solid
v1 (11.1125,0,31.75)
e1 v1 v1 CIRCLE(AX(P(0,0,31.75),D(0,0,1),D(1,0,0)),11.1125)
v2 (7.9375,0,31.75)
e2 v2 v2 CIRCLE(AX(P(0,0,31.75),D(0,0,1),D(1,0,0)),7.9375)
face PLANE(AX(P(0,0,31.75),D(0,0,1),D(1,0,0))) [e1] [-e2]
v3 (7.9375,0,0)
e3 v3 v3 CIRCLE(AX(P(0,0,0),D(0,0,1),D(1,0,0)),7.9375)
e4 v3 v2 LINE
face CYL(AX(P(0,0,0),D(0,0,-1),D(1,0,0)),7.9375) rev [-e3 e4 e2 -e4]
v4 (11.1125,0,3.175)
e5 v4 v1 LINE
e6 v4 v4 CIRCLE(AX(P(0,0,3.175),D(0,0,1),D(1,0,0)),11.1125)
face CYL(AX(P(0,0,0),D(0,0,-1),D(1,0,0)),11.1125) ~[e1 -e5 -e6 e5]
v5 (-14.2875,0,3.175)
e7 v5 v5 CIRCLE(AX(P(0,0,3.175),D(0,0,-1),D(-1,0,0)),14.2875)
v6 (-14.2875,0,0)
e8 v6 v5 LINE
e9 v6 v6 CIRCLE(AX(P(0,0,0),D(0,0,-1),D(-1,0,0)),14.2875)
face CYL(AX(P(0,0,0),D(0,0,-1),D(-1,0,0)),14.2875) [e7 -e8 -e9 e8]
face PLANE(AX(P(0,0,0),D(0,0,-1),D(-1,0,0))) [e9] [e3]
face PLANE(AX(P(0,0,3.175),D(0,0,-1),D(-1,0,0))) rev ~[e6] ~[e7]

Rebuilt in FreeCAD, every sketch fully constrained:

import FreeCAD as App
import Part
import Sketcher
Q = App.Units.Quantity

doc = App.newDocument("Part")
params = doc.addObject("Spreadsheet::Sheet", "Params")
for row, (alias, value) in enumerate([
    ("sketch1_diameter", "0.875 in"),
    ("sketch1_diameter2", "0.625 in"),
    ("pad1_length", "1.25 in"),
    ("sketch2_diameter", "1.125 in"),
    ("sketch2_diameter2", "0.875 in"),
    ("pad2_length", "0.125 in"),
], start=1):
    params.set(f"A{row}", alias)
    params.set(f"B{row}", "=" + value)
    params.setAlias(f"B{row}", alias)

body = doc.addObject("PartDesign::Body", "Body")

# Sketch on XY plane
sketch1 = doc.addObject("Sketcher::SketchObject", "Sketch")
body.addObject(sketch1)
sketch1.AttachmentSupport = (doc.XY_Plane, [""])
sketch1.MapMode = "FlatFace"
sketch1.addGeometry(Part.Circle(App.Vector(0, 0, 0), App.Vector(0, 0, 1), 11), False)
sketch1.addGeometry(Part.Circle(App.Vector(0, 0, 0), App.Vector(0, 0, 1), 8), False)
sketch1.addConstraint(Sketcher.Constraint("Coincident", 0, 3, -1, 1))
sketch1.addConstraint(Sketcher.Constraint("Coincident", 1, 3, -1, 1))
sketch1.addConstraint(Sketcher.Constraint("Diameter", 0, Q("0.875 in")))
sketch1.addConstraint(Sketcher.Constraint("Diameter", 1, Q("0.625 in")))
sketch1.setExpression("Constraints[2]", "Params.sketch1_diameter")
sketch1.setExpression("Constraints[3]", "Params.sketch1_diameter2")
pad1 = doc.addObject("PartDesign::Pad", "Pad")
body.addObject(pad1)
pad1.Profile = sketch1
pad1.setExpression("Length", "Params.pad1_length")

# Sketch on XY plane
sketch2 = doc.addObject("Sketcher::SketchObject", "Sketch001")
body.addObject(sketch2)
sketch2.AttachmentSupport = (doc.XY_Plane, [""])
sketch2.MapMode = "FlatFace"
sketch2.addGeometry(Part.Circle(App.Vector(0, 0, 0), App.Vector(0, 0, 1), 14), False)
sketch2.addGeometry(Part.Circle(App.Vector(0, 0, 0), App.Vector(0, 0, 1), 11), False)
sketch2.addConstraint(Sketcher.Constraint("Coincident", 0, 3, -1, 1))
sketch2.addConstraint(Sketcher.Constraint("Coincident", 1, 3, -1, 1))
sketch2.addConstraint(Sketcher.Constraint("Diameter", 0, Q("1.125 in")))
sketch2.addConstraint(Sketcher.Constraint("Diameter", 1, Q("0.875 in")))
sketch2.setExpression("Constraints[2]", "Params.sketch2_diameter")
sketch2.setExpression("Constraints[3]", "Params.sketch2_diameter2")
pad2 = doc.addObject("PartDesign::Pad", "Pad001")
body.addObject(pad2)
pad2.Profile = sketch2
pad2.setExpression("Length", "Params.pad2_length")

doc.recompute()
